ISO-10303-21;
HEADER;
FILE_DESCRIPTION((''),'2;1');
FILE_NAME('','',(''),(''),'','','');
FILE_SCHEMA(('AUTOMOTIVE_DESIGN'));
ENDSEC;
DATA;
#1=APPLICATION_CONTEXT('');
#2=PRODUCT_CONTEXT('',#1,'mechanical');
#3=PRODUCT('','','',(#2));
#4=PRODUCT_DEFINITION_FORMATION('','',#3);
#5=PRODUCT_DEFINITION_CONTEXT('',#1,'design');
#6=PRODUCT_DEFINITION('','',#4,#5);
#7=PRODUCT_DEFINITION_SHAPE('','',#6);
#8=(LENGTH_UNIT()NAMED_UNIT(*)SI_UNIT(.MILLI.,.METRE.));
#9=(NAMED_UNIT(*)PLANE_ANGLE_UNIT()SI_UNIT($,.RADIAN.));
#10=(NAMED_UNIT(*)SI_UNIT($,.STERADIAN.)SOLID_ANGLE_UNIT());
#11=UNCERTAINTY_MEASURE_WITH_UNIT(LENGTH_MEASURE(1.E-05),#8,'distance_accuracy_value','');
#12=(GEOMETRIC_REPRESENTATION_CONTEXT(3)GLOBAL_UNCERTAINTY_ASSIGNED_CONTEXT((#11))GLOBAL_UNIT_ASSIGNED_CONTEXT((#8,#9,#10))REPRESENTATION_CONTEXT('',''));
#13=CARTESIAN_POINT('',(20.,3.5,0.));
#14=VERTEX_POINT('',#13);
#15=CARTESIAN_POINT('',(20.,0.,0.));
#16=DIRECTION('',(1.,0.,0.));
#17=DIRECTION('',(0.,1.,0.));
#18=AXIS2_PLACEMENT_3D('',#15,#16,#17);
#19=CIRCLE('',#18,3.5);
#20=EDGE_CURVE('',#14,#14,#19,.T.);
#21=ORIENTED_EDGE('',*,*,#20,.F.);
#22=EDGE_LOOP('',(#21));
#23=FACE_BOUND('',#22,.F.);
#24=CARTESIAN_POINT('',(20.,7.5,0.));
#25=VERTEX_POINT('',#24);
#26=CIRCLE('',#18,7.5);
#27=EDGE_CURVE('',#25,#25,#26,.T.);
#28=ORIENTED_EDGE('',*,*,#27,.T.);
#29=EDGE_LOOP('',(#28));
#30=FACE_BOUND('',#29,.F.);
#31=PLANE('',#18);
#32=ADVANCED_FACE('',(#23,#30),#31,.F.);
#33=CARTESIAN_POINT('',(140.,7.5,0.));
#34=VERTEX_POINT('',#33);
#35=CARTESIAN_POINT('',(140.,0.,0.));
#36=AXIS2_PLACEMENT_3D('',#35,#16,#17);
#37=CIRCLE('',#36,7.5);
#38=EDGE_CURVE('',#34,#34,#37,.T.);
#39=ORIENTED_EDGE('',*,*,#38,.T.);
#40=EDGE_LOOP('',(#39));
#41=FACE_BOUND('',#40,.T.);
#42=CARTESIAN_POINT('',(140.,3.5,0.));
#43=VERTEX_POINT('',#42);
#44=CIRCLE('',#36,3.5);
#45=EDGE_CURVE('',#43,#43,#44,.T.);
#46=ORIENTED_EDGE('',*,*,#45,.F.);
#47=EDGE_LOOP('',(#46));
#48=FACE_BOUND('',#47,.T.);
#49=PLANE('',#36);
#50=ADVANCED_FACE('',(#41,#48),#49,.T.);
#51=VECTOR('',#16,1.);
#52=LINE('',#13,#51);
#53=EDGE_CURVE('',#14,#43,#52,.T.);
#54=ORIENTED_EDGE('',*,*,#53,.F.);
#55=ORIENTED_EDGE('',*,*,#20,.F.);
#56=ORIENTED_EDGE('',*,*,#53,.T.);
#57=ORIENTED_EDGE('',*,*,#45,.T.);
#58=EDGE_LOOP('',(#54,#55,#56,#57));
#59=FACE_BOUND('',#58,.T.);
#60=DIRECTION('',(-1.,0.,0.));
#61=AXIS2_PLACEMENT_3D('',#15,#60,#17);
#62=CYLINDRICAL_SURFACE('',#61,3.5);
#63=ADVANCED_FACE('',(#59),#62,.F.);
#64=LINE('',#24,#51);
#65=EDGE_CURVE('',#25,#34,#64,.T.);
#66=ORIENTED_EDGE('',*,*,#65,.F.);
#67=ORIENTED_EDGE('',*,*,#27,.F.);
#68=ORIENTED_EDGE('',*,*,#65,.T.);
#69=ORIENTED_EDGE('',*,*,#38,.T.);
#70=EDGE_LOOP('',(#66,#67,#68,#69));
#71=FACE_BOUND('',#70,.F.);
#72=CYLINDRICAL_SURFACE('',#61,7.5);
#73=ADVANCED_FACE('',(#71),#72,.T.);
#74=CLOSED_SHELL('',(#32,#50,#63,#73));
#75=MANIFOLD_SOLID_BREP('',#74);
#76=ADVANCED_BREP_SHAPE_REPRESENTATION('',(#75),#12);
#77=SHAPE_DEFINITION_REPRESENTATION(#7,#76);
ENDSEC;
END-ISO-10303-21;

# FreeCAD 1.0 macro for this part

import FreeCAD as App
import Part
import Sketcher

doc = App.newDocument("Part")
body = doc.addObject("PartDesign::Body", "Body")

# Sketch on YZ plane
sketch1 = body.newObject("Sketcher::SketchObject", "Sketch")
sketch1.AttachmentSupport = (doc.getObject("YZ_Plane"), [""])
sketch1.MapMode = "FlatFace"
sketch1.AttachmentOffset = App.Placement(App.Vector(0, 0, 20), App.Rotation())
sketch1.addGeometry(Part.Circle(App.Vector(0, 0, 0), App.Vector(0, 0, 1), 7.5), False)
sketch1.addGeometry(Part.Circle(App.Vector(0, 0, 0), App.Vector(0, 0, 1), 3.5), False)
sketch1.addConstraint(Sketcher.Constraint("Coincident", 0, 3, -1, 1))
sketch1.addConstraint(Sketcher.Constraint("Coincident", 1, 3, -1, 1))
sketch1.addConstraint(Sketcher.Constraint("Diameter", 0, 15.0))
sketch1.addConstraint(Sketcher.Constraint("Diameter", 1, 7.0))
pad1 = body.newObject("PartDesign::Pad", "Pad")
pad1.Profile = sketch1
pad1.Length = 120

doc.recompute()
